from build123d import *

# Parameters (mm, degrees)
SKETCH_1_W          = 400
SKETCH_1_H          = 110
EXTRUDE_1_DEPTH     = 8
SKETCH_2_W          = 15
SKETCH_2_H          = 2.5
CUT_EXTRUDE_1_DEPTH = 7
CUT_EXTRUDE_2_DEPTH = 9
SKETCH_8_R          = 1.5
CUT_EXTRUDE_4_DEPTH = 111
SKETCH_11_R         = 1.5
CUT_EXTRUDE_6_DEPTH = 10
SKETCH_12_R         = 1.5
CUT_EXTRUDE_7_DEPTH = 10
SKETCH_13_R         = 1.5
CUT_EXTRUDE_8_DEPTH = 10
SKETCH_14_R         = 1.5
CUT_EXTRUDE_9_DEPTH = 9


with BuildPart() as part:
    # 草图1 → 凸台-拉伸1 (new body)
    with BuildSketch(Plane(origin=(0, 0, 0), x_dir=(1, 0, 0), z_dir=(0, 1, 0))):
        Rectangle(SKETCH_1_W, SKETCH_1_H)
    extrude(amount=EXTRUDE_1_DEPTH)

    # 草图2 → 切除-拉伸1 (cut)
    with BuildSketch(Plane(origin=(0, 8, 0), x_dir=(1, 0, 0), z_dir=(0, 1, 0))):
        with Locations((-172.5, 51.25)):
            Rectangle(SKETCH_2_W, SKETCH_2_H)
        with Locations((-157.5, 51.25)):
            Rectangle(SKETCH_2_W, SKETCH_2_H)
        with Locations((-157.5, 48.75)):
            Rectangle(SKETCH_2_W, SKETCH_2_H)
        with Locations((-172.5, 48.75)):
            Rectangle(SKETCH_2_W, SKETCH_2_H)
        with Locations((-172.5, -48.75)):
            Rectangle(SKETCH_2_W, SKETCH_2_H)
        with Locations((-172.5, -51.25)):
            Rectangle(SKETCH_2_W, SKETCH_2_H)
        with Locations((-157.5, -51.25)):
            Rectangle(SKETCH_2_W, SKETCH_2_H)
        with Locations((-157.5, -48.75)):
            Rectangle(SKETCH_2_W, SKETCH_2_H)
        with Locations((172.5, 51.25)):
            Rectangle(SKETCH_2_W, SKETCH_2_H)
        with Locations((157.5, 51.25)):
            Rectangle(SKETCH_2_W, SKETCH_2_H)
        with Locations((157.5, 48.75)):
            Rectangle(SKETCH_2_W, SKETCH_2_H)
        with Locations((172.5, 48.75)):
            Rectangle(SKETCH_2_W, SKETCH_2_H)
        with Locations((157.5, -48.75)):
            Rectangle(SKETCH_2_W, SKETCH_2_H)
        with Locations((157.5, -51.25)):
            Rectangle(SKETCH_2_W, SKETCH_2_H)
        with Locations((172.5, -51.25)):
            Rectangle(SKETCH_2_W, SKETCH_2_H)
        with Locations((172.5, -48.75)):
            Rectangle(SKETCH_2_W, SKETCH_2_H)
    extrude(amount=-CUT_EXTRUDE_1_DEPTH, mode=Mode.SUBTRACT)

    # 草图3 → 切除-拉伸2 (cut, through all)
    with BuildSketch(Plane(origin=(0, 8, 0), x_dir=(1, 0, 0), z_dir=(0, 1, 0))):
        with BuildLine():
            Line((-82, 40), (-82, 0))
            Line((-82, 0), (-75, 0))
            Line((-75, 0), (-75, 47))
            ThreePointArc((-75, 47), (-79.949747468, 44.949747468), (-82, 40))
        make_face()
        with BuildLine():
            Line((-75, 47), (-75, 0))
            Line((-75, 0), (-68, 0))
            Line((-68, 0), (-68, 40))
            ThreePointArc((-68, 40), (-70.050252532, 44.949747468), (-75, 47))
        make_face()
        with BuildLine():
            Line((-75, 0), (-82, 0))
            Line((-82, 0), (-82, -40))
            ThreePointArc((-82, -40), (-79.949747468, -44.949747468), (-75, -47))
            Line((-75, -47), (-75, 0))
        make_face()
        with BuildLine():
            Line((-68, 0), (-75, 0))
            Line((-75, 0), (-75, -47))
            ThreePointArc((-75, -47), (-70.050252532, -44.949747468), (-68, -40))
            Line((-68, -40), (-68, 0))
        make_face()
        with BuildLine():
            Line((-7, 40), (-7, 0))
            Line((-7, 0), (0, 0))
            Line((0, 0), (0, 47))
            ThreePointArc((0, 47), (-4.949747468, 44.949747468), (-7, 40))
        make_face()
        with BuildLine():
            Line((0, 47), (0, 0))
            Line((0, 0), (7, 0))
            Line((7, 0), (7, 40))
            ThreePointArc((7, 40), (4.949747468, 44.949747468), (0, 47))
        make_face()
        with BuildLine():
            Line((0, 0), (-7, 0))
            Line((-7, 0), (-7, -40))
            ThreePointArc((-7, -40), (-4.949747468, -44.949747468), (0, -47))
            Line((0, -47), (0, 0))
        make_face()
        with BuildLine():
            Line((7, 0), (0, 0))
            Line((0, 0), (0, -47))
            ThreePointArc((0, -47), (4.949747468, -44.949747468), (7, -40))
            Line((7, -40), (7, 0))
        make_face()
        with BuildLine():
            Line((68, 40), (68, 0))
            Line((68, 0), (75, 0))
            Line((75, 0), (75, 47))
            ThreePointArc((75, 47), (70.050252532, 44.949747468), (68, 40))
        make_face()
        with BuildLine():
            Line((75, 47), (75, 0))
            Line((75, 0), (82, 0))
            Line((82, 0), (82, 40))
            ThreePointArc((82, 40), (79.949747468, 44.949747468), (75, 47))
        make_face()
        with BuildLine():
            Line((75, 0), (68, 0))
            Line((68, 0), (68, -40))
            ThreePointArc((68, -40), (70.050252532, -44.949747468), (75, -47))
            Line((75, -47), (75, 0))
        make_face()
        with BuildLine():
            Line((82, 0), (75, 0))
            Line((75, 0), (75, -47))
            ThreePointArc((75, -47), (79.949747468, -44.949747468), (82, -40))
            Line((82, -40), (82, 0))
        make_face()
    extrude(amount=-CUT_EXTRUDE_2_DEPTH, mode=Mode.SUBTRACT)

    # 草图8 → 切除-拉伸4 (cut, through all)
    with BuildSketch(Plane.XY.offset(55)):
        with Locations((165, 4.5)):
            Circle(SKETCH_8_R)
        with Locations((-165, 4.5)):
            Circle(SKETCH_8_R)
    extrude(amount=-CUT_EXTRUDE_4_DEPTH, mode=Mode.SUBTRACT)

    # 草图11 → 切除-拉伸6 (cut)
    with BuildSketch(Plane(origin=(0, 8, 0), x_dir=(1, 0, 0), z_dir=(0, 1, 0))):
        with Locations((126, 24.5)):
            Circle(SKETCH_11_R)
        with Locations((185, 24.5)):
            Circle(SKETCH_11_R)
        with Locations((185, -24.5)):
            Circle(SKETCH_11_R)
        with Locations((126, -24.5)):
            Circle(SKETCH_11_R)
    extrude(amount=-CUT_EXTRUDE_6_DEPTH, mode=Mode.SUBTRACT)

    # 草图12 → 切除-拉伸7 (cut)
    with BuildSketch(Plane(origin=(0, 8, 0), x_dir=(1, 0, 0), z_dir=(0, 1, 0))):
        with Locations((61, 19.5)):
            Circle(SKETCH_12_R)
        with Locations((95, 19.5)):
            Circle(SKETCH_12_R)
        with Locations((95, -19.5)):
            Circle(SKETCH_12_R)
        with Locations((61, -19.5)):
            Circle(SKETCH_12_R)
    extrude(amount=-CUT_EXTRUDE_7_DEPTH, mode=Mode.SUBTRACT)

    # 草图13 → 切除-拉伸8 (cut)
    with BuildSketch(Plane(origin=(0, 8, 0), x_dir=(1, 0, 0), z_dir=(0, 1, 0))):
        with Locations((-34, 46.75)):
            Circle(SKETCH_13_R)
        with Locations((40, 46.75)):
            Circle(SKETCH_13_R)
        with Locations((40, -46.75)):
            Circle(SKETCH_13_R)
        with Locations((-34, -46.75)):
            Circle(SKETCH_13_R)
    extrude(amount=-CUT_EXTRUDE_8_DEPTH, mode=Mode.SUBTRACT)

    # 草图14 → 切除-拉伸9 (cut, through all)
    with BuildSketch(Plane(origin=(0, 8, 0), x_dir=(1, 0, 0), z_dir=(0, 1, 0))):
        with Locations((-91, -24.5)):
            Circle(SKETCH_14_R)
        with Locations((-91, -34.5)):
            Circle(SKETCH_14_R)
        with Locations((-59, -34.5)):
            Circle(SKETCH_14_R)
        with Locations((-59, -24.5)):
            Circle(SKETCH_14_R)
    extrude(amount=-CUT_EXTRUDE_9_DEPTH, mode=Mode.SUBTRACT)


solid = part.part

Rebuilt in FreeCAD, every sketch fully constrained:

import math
import FreeCAD as App
import Part
import Sketcher

V = App.Vector


def add_polygon(sketch, points):
    """Adds a closed chain of lines whose ends are joined by coincident constraints."""
    first, n = sketch.GeometryCount, len(points)
    for a, b in zip(points, points[1:] + points[:1]):
        sketch.addGeometry(Part.LineSegment(App.Vector(*a, 0), App.Vector(*b, 0)), False)
    for i in range(n):
        sketch.addConstraint(Sketcher.Constraint("Coincident", first + i, 2, first + (i + 1) % n, 1))

doc = App.newDocument("Part")
params = doc.addObject("Spreadsheet::Sheet", "Params")
for row, (alias, value) in enumerate([
    ("sketch1_width", "400 mm"),
    ("sketch1_height", "110 mm"),
    ("pad1_length", "8 mm"),
    ("sketch2_width", "30 mm"),
    ("sketch2_height", "5 mm"),
    ("pocket1_length", "7 mm"),
    ("sketch3_radius", "7 mm"),
    ("sketch3_height", "80 mm"),
    ("sketch4_diameter", "3 mm"),
    ("sketch5_diameter", "3 mm"),
    ("pocket4_length", "10 mm"),
    ("sketch6_diameter", "3 mm"),
    ("pocket5_length", "10 mm"),
    ("sketch7_diameter", "3 mm"),
    ("pocket6_length", "10 mm"),
    ("sketch8_diameter", "3 mm"),
], start=1):
    params.set(f"A{row}", alias)
    params.set(f"B{row}", "=" + value)
    params.setAlias(f"B{row}", alias)

body = doc.addObject("PartDesign::Body", "Body")

sketch1 = body.newObject("Sketcher::SketchObject", "Sketch")
sketch1.AttachmentSupport = (doc.getObject("XZ_Plane"), [""])
sketch1.MapMode = "FlatFace"
add_polygon(sketch1, [(-200, -55), (-200, 55), (200, 55), (200, -55)])
sketch1.addConstraint([
    Sketcher.Constraint("Vertical", 0),
    Sketcher.Constraint("Horizontal", 1),
    Sketcher.Constraint("Vertical", 2),
    Sketcher.Constraint("Horizontal", 3),
    Sketcher.Constraint("Symmetric", 0, 2, 2, 2, -1, 1),
    Sketcher.Constraint("DistanceX", 1, 1, 1, 2, 400.0),
    Sketcher.Constraint("DistanceY", 0, 1, 0, 2, 110.0),
])
sketch1.setExpression("Constraints[9]", "Params.sketch1_width")
sketch1.setExpression("Constraints[10]", "Params.sketch1_height")
pad1 = body.newObject("PartDesign::Pad", "Pad")
pad1.Profile = sketch1
pad1.setExpression("Length", "Params.pad1_length")
pad1.Reversed = True

sketch2 = body.newObject("Sketcher::SketchObject", "Sketch001")
sketch2.AttachmentSupport = (doc.getObject("XZ_Plane"), [""])
sketch2.MapMode = "FlatFace"
sketch2.AttachmentOffset = App.Placement(V(0, 0, -8), App.Rotation())
add_polygon(sketch2, [(-180, -52), (-180, -48), (-150, -48), (-150, -52)])
add_polygon(sketch2, [(-180, 48), (-180, 52), (-150, 52), (-150, 48)])
add_polygon(sketch2, [(180, -52), (150, -52), (150, -48), (180, -48)])
add_polygon(sketch2, [(150, 48), (150, 52), (180, 52), (180, 48)])
sketch2.addConstraint([
    Sketcher.Constraint("Vertical", 0),
    Sketcher.Constraint("Horizontal", 1),
    Sketcher.Constraint("Vertical", 2),
    Sketcher.Constraint("Horizontal", 3),
    Sketcher.Constraint("Vertical", 4),
    Sketcher.Constraint("Horizontal", 5),
    Sketcher.Constraint("Vertical", 6),
    Sketcher.Constraint("Horizontal", 7),
    Sketcher.Constraint("Horizontal", 8),
    Sketcher.Constraint("Vertical", 9),
    Sketcher.Constraint("Horizontal", 10),
    Sketcher.Constraint("Vertical", 11),
    Sketcher.Constraint("Vertical", 12),
    Sketcher.Constraint("Horizontal", 13),
    Sketcher.Constraint("Vertical", 14),
    Sketcher.Constraint("Horizontal", 15),
    Sketcher.Constraint("Symmetric", 5, 2, 8, 2, -1, 1),
    Sketcher.Constraint("Symmetric", 7, 2, 10, 2, -1, 1),
    Sketcher.Constraint("Symmetric", 2, 2, 12, 2, -1, 1),
    Sketcher.Constraint("Symmetric", 0, 2, 14, 2, -1, 1),
    Sketcher.Constraint("Symmetric", 2, 2, 8, 2, -2),
    Sketcher.Constraint("Symmetric", 0, 2, 10, 2, -2),
    Sketcher.Constraint("DistanceX", 1, 1, 1, 2, 30.0),
    Sketcher.Constraint("DistanceY", 0, 1, 0, 2, 5.0),
    Sketcher.Constraint("DistanceX", 0, 2, -1, 1, 180.0),
    Sketcher.Constraint("DistanceY", 0, 2, 4, 2, 100.0),
])
sketch2.setExpression("Constraints[38]", "Params.sketch2_width")
sketch2.setExpression("Constraints[39]", "Params.sketch2_height")
pocket1 = body.newObject("PartDesign::Pocket", "Pocket")
pocket1.Profile = sketch2
pocket1.setExpression("Length", "Params.pocket1_length")
pocket1.Reversed = True

sketch3 = body.newObject("Sketcher::SketchObject", "Sketch002")
sketch3.AttachmentSupport = (doc.getObject("XZ_Plane"), [""])
sketch3.MapMode = "FlatFace"
sketch3.AttachmentOffset = App.Placement(V(0, 0, -8), App.Rotation())
sketch3.addGeometry([
    Part.LineSegment(V(-82, -40, 0), V(-82, 40, 0)),
    Part.ArcOfCircle(Part.Circle(V(-75, 40, 0), V(0, 0, 1), 7), math.radians(90), math.radians(180)),
    Part.ArcOfCircle(Part.Circle(V(-75, 40, 0), V(0, 0, 1), 7), math.radians(0), math.radians(90)),
    Part.LineSegment(V(-68, 40, 0), V(-68, -40, 0)),
    Part.ArcOfCircle(Part.Circle(V(-75, -40, 0), V(0, 0, 1), 7), math.radians(-90), math.radians(0)),
    Part.ArcOfCircle(Part.Circle(V(-75, -40, 0), V(0, 0, 1), 7), math.radians(-180), math.radians(-90)),
    Part.LineSegment(V(-7, -40, 0), V(-7, 40, 0)),
    Part.ArcOfCircle(Part.Circle(V(0, 40, 0), V(0, 0, 1), 7), math.radians(90), math.radians(180)),
    Part.ArcOfCircle(Part.Circle(V(0, 40, 0), V(0, 0, 1), 7), math.radians(0), math.radians(90)),
    Part.LineSegment(V(7, 40, 0), V(7, -40, 0)),
    Part.ArcOfCircle(Part.Circle(V(0, -40, 0), V(0, 0, 1), 7), math.radians(-90), math.radians(0)),
    Part.ArcOfCircle(Part.Circle(V(0, -40, 0), V(0, 0, 1), 7), math.radians(-180), math.radians(-90)),
    Part.LineSegment(V(68, -40, 0), V(68, 40, 0)),
    Part.ArcOfCircle(Part.Circle(V(75, 40, 0), V(0, 0, 1), 7), math.radians(90), math.radians(180)),
    Part.ArcOfCircle(Part.Circle(V(75, 40, 0), V(0, 0, 1), 7), math.radians(0), math.radians(90)),
    Part.LineSegment(V(82, 40, 0), V(82, -40, 0)),
    Part.ArcOfCircle(Part.Circle(V(75, -40, 0), V(0, 0, 1), 7), math.radians(-90), math.radians(0)),
    Part.ArcOfCircle(Part.Circle(V(75, -40, 0), V(0, 0, 1), 7), math.radians(-180), math.radians(-90)),
], False)
sketch3.addConstraint([
    Sketcher.Constraint("Tangent", 0, 2, 1, 2),
    Sketcher.Constraint("Tangent", 1, 1, 2, 2),
    Sketcher.Constraint("Tangent", 2, 1, 3, 1),
    Sketcher.Constraint("Tangent", 3, 2, 4, 2),
    Sketcher.Constraint("Tangent", 4, 1, 5, 2),
    Sketcher.Constraint("Tangent", 5, 1, 0, 1),
    Sketcher.Constraint("Tangent", 6, 2, 7, 2),
    Sketcher.Constraint("Tangent", 7, 1, 8, 2),
    Sketcher.Constraint("Tangent", 8, 1, 9, 1),
    Sketcher.Constraint("Tangent", 9, 2, 10, 2),
    Sketcher.Constraint("Tangent", 10, 1, 11, 2),
    Sketcher.Constraint("Tangent", 11, 1, 6, 1),
    Sketcher.Constraint("Tangent", 12, 2, 13, 2),
    Sketcher.Constraint("Tangent", 13, 1, 14, 2),
    Sketcher.Constraint("Tangent", 14, 1, 15, 1),
    Sketcher.Constraint("Tangent", 15, 2, 16, 2),
    Sketcher.Constraint("Tangent", 16, 1, 17, 2),
    Sketcher.Constraint("Tangent", 17, 1, 12, 1),
    Sketcher.Constraint("Vertical", 0),
    Sketcher.Constraint("Vertical", 3),
    Sketcher.Constraint("Vertical", 6),
    Sketcher.Constraint("Vertical", 9),
    Sketcher.Constraint("Vertical", 12),
    Sketcher.Constraint("Vertical", 15),
    Sketcher.Constraint("Equal", 1, 2),
    Sketcher.Constraint("Equal", 2, 4),
    Sketcher.Constraint("Equal", 5, 7),
    Sketcher.Constraint("Equal", 7, 8),
    Sketcher.Constraint("Equal", 8, 10),
    Sketcher.Constraint("Equal", 11, 13),
    Sketcher.Constraint("Equal", 13, 14),
    Sketcher.Constraint("Equal", 14, 16),
    Sketcher.Constraint("Symmetric", 7, 3, 10, 3, -1, 1),
    Sketcher.Constraint("Symmetric", 4, 3, 13, 3, -1, 1),
    Sketcher.Constraint("Symmetric", 1, 1, 16, 1, -1, 1),
    Sketcher.Constraint("Symmetric", 1, 1, 13, 1, -2),
    Sketcher.Constraint("PointOnObject", 7, 1, -2),
    Sketcher.Constraint("PointOnObject", 10, 1, -2),
    Sketcher.Constraint("Horizontal", 2, 3, 7, 3),
    Sketcher.Constraint("Vertical", 5, 3, 1, 1),
    Sketcher.Constraint("Vertical", 1, 1, 4, 1),
    Sketcher.Constraint("Radius", 1, 7.0),
    Sketcher.Constraint("DistanceY", 0, 1, 0, 2, 80.0),
    Sketcher.Constraint("DistanceX", 1, 3, -1, 1, 75.0),
])
sketch3.setExpression("Constraints[41]", "Params.sketch3_radius")
sketch3.setExpression("Constraints[42]", "Params.sketch3_height")
pocket2 = body.newObject("PartDesign::Pocket", "Pocket001")
pocket2.Profile = sketch3
pocket2.Type = "ThroughAll"
pocket2.Reversed = True

sketch4 = body.newObject("Sketcher::SketchObject", "Sketch003")
sketch4.AttachmentSupport = (doc.getObject("XY_Plane"), [""])
sketch4.MapMode = "FlatFace"
sketch4.AttachmentOffset = App.Placement(V(0, 0, 55), App.Rotation())
sketch4.addGeometry([
    Part.Circle(V(165, 4.5, 0), V(0, 0, 1), 1.5),
    Part.Circle(V(-165, 4.5, 0), V(0, 0, 1), 1.5),
], False)
sketch4.addConstraint([
    Sketcher.Constraint("Equal", 0, 1),
    Sketcher.Constraint("Symmetric", 0, 3, 1, 3, -2),
    Sketcher.Constraint("Diameter", 0, 3.0),
    Sketcher.Constraint("DistanceX", -1, 1, 0, 3, 165.0),
    Sketcher.Constraint("DistanceY", -1, 1, 0, 3, 4.5),
])
sketch4.setExpression("Constraints[2]", "Params.sketch4_diameter")
pocket3 = body.newObject("PartDesign::Pocket", "Pocket002")
pocket3.Profile = sketch4
pocket3.Type = "ThroughAll"

sketch5 = body.newObject("Sketcher::SketchObject", "Sketch004")
sketch5.AttachmentSupport = (doc.getObject("XZ_Plane"), [""])
sketch5.MapMode = "FlatFace"
sketch5.AttachmentOffset = App.Placement(V(0, 0, -8), App.Rotation())
sketch5.addGeometry([
    Part.Circle(V(126, -24.5, 0), V(0, 0, 1), 1.5),
    Part.Circle(V(185, -24.5, 0), V(0, 0, 1), 1.5),
    Part.Circle(V(185, 24.5, 0), V(0, 0, 1), 1.5),
    Part.Circle(V(126, 24.5, 0), V(0, 0, 1), 1.5),
], False)
sketch5.addConstraint([
    Sketcher.Constraint("Equal", 0, 1),
    Sketcher.Constraint("Equal", 1, 2),
    Sketcher.Constraint("Equal", 2, 3),
    Sketcher.Constraint("Symmetric", 1, 3, 2, 3, -1),
    Sketcher.Constraint("Symmetric", 0, 3, 3, 3, -1),
    Sketcher.Constraint("Horizontal", 0, 3, 1, 3),
    Sketcher.Constraint("Diameter", 0, 3.0),
    Sketcher.Constraint("DistanceX", -1, 1, 0, 3, 126.0),
    Sketcher.Constraint("DistanceX", -1, 1, 1, 3, 185.0),
    Sketcher.Constraint("DistanceY", 1, 3, 2, 3, 49.0),
])
sketch5.setExpression("Constraints[6]", "Params.sketch5_diameter")
pocket4 = body.newObject("PartDesign::Pocket", "Pocket003")
pocket4.Profile = sketch5
pocket4.setExpression("Length", "Params.pocket4_length")
pocket4.Reversed = True

sketch6 = body.newObject("Sketcher::SketchObject", "Sketch005")
sketch6.AttachmentSupport = (doc.getObject("XZ_Plane"), [""])
sketch6.MapMode = "FlatFace"
sketch6.AttachmentOffset = App.Placement(V(0, 0, -8), App.Rotation())
sketch6.addGeometry([
    Part.Circle(V(61, -19.5, 0), V(0, 0, 1), 1.5),
    Part.Circle(V(95, -19.5, 0), V(0, 0, 1), 1.5),
    Part.Circle(V(95, 19.5, 0), V(0, 0, 1), 1.5),
    Part.Circle(V(61, 19.5, 0), V(0, 0, 1), 1.5),
], False)
sketch6.addConstraint([
    Sketcher.Constraint("Equal", 0, 1),
    Sketcher.Constraint("Equal", 1, 2),
    Sketcher.Constraint("Equal", 2, 3),
    Sketcher.Constraint("Symmetric", 1, 3, 2, 3, -1),
    Sketcher.Constraint("Symmetric", 0, 3, 3, 3, -1),
    Sketcher.Constraint("Horizontal", 0, 3, 1, 3),
    Sketcher.Constraint("Diameter", 0, 3.0),
    Sketcher.Constraint("DistanceX", -1, 1, 0, 3, 61.0),
    Sketcher.Constraint("DistanceX", -1, 1, 1, 3, 95.0),
    Sketcher.Constraint("DistanceY", 1, 3, 2, 3, 39.0),
])
sketch6.setExpression("Constraints[6]", "Params.sketch6_diameter")
pocket5 = body.newObject("PartDesign::Pocket", "Pocket004")
pocket5.Profile = sketch6
pocket5.setExpression("Length", "Params.pocket5_length")
pocket5.Reversed = True

sketch7 = body.newObject("Sketcher::SketchObject", "Sketch006")
sketch7.AttachmentSupport = (doc.getObject("XZ_Plane"), [""])
sketch7.MapMode = "FlatFace"
sketch7.AttachmentOffset = App.Placement(V(0, 0, -8), App.Rotation())
sketch7.addGeometry([
    Part.Circle(V(-34, -46.8, 0), V(0, 0, 1), 1.5),
    Part.Circle(V(40, -46.8, 0), V(0, 0, 1), 1.5),
    Part.Circle(V(40, 46.8, 0), V(0, 0, 1), 1.5),
    Part.Circle(V(-34, 46.8, 0), V(0, 0, 1), 1.5),
], False)
sketch7.addConstraint([
    Sketcher.Constraint("Equal", 0, 1),
    Sketcher.Constraint("Equal", 1, 2),
    Sketcher.Constraint("Equal", 2, 3),
    Sketcher.Constraint("Symmetric", 1, 3, 2, 3, -1),
    Sketcher.Constraint("Symmetric", 0, 3, 3, 3, -1),
    Sketcher.Constraint("Horizontal", 0, 3, 1, 3),
    Sketcher.Constraint("Diameter", 0, 3.0),
    Sketcher.Constraint("DistanceX", 0, 3, -1, 1, 34.0),
    Sketcher.Constraint("DistanceX", -1, 1, 1, 3, 40.0),
    Sketcher.Constraint("DistanceY", 1, 3, 2, 3, 93.5),
])
sketch7.setExpression("Constraints[6]", "Params.sketch7_diameter")
pocket6 = body.newObject("PartDesign::Pocket", "Pocket005")
pocket6.Profile = sketch7
pocket6.setExpression("Length", "Params.pocket6_length")
pocket6.Reversed = True

sketch8 = body.newObject("Sketcher::SketchObject", "Sketch007")
sketch8.AttachmentSupport = (doc.getObject("XZ_Plane"), [""])
sketch8.MapMode = "FlatFace"
sketch8.AttachmentOffset = App.Placement(V(0, 0, -8), App.Rotation())
sketch8.addGeometry([
    Part.Circle(V(-91, 24.5, 0), V(0, 0, 1), 1.5),
    Part.Circle(V(-91, 34.5, 0), V(0, 0, 1), 1.5),
    Part.Circle(V(-59, 34.5, 0), V(0, 0, 1), 1.5),
    Part.Circle(V(-59, 24.5, 0), V(0, 0, 1), 1.5),
], False)
sketch8.addConstraint([
    Sketcher.Constraint("Equal", 0, 1),
    Sketcher.Constraint("Equal", 1, 2),
    Sketcher.Constraint("Equal", 2, 3),
    Sketcher.Constraint("Horizontal", 1, 3, 2, 3),
    Sketcher.Constraint("Horizontal", 0, 3, 3, 3),
    Sketcher.Constraint("Vertical", 0, 3, 1, 3),
    Sketcher.Constraint("Vertical", 2, 3, 3, 3),
    Sketcher.Constraint("Diameter", 0, 3.0),
    Sketcher.Constraint("DistanceX", 0, 3, -1, 1, 91.0),
    Sketcher.Constraint("DistanceX", 2, 3, -1, 1, 59.0),
    Sketcher.Constraint("DistanceY", 0, 3, 1, 3, 10.0),
    Sketcher.Constraint("DistanceY", -1, 1, 0, 3, 24.5),
])
sketch8.setExpression("Constraints[7]", "Params.sketch8_diameter")
pocket7 = body.newObject("PartDesign::Pocket", "Pocket006")
pocket7.Profile = sketch8
pocket7.Type = "ThroughAll"
pocket7.Reversed = True

doc.recompute()
